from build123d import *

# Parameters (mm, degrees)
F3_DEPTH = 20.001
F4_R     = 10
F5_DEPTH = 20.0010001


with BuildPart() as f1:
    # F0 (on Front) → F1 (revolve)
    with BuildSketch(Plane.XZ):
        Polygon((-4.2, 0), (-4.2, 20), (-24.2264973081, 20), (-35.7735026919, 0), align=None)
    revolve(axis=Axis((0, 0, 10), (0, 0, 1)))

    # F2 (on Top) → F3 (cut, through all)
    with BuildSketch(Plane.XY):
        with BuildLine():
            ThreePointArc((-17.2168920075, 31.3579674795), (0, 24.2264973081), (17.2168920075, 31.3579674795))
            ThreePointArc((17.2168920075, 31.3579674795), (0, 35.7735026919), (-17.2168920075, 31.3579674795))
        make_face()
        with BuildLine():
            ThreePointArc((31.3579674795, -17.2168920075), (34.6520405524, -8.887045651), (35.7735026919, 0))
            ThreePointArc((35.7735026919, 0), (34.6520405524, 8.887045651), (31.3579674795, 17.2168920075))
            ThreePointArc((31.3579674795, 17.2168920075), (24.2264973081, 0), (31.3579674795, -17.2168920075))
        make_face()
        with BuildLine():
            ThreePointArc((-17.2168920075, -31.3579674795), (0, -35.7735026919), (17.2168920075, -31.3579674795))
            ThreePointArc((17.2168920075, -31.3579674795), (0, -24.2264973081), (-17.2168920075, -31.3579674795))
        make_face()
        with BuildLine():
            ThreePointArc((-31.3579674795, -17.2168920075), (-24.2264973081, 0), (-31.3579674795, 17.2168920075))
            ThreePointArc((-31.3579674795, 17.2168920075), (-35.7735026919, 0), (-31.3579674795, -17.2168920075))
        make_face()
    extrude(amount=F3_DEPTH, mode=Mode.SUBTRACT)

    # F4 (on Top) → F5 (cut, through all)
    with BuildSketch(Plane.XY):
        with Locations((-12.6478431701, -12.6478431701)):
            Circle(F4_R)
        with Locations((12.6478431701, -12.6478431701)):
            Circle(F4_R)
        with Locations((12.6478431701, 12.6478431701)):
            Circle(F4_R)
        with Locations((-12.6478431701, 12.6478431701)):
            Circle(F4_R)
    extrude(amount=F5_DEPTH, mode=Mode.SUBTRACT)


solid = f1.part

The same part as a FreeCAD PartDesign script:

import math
import FreeCAD as App
import Part
import Sketcher

V = App.Vector
Q = App.Units.Quantity


def add_polygon(sketch, points):
    """Adds a closed chain of lines whose ends are joined by coincident constraints."""
    first, n = sketch.GeometryCount, len(points)
    for a, b in zip(points, points[1:] + points[:1]):
        sketch.addGeometry(Part.LineSegment(App.Vector(*a, 0), App.Vector(*b, 0)), False)
    for i in range(n):
        sketch.addConstraint(Sketcher.Constraint("Coincident", first + i, 2, first + (i + 1) % n, 1))

doc = App.newDocument("Part")
body = doc.addObject("PartDesign::Body", "Body")

# Sketch on XZ plane
sketch1 = doc.addObject("Sketcher::SketchObject", "Sketch")
body.addObject(sketch1)
sketch1.AttachmentSupport = (doc.XZ_Plane, [""])
sketch1.MapMode = "FlatFace"
add_polygon(sketch1, [(-4.2, 0), (-4.2, 20), (-24.226497, 20), (-35.773503, 0)])  # lines 0-3
sketch1.addConstraint([
    Sketcher.Constraint("Vertical", 0),
    Sketcher.Constraint("Horizontal", 1),
    Sketcher.Constraint("Horizontal", 3),
    Sketcher.Constraint("PointOnObject", 2, 2, -1),
    Sketcher.Constraint("DistanceY", 0, 1, 0, 2, Q("20 mm")),
    Sketcher.Constraint("Angle", 2, Q("-120 deg")),
    Sketcher.Constraint("DistanceX", 0, 2, -1, 1, Q("4.2 mm")),
    Sketcher.Constraint("DistanceX", 1, 2, 1, 1, Q("20.026497 mm")),
])
revolution = doc.addObject("PartDesign::Revolution", "Revolution")
body.addObject(revolution)
revolution.Profile = sketch1
revolution.ReferenceAxis = (sketch1, ["V_Axis"])
revolution.Angle = 360

# Sketch on XY plane
sketch2 = doc.addObject("Sketcher::SketchObject", "Sketch001")
body.addObject(sketch2)
sketch2.AttachmentSupport = (doc.XY_Plane, [""])
sketch2.MapMode = "FlatFace"
sketch2.addGeometry([
    Part.ArcOfCircle(Part.Circle(V(0, 48.574859, 0), V(0, 0, 1), 24.348362), math.radians(-135), math.radians(-45)),  # 0
    Part.ArcOfCircle(Part.Circle(V(0, 0, 0), V(0, 0, 1), 35.773503), math.radians(61.231293), math.radians(118.768707)),  # 1
    Part.ArcOfCircle(Part.Circle(V(0, 0, 0), V(0, 0, 1), 35.773503), math.radians(-28.768707), math.radians(0)),  # 2
    Part.ArcOfCircle(Part.Circle(V(0, 0, 0), V(0, 0, 1), 35.773503), math.radians(0), math.radians(28.768707)),  # 3
    Part.ArcOfCircle(Part.Circle(V(48.574859, 0, 0), V(0, 0, 1), 24.348362), math.radians(135), math.radians(225)),  # 4
    Part.ArcOfCircle(Part.Circle(V(0, 0, 0), V(0, 0, 1), 35.773503), math.radians(-118.768707), math.radians(-61.231293)),  # 5
    Part.ArcOfCircle(Part.Circle(V(0, -48.574859, 0), V(0, 0, 1), 24.348362), math.radians(45), math.radians(135)),  # 6
    Part.ArcOfCircle(Part.Circle(V(-48.574859, 0, 0), V(0, 0, 1), 24.348362), math.radians(-45), math.radians(45)),  # 7
    Part.ArcOfCircle(Part.Circle(V(0, 0, 0), V(0, 0, 1), 35.773503), math.radians(151.231293), math.radians(208.768707)),  # 8
], False)
sketch2.addConstraint([
    Sketcher.Constraint("Coincident", 0, 1, 1, 2),
    Sketcher.Constraint("Coincident", 1, 1, 0, 2),
    Sketcher.Constraint("Tangent", 2, 2, 3, 1),
    Sketcher.Constraint("Coincident", 3, 2, 4, 1),
    Sketcher.Constraint("Coincident", 4, 2, 2, 1),
    Sketcher.Constraint("Coincident", 5, 1, 6, 2),
    Sketcher.Constraint("Coincident", 6, 1, 5, 2),
    Sketcher.Constraint("Coincident", 7, 1, 8, 2),
    Sketcher.Constraint("Coincident", 8, 1, 7, 2),
    Sketcher.Constraint("Coincident", 1, 3, -1, 1),
    Sketcher.Constraint("Coincident", 2, 3, -1, 1),
    Sketcher.Constraint("Coincident", 5, 3, -1, 1),
    Sketcher.Constraint("Coincident", 8, 3, -1, 1),
    Sketcher.Constraint("Equal", 1, 2),
    Sketcher.Constraint("Equal", 2, 3),
    Sketcher.Constraint("Equal", 0, 4),
    Sketcher.Constraint("Equal", 3, 5),
    Sketcher.Constraint("Equal", 4, 6),
    Sketcher.Constraint("Equal", 6, 7),
    Sketcher.Constraint("Equal", 5, 8),
    Sketcher.Constraint("Symmetric", 0, 3, 6, 3, -1, 1),
    Sketcher.Constraint("Symmetric", 4, 3, 7, 3, -1, 1),
    Sketcher.Constraint("PointOnObject", 0, 3, -2),
    Sketcher.Constraint("PointOnObject", 4, 3, -1),
    Sketcher.Constraint("PointOnObject", 2, 2, -1),
    Sketcher.Constraint("Radius", 0, Q("24.348362 mm")),
    Sketcher.Constraint("Radius", 1, Q("35.773503 mm")),
    Sketcher.Constraint("DistanceY", -1, 1, 0, 3, Q("48.574859 mm")),
    Sketcher.Constraint("DistanceX", -1, 1, 4, 3, Q("48.574859 mm")),
])
pocket1 = doc.addObject("PartDesign::Pocket", "Pocket")
body.addObject(pocket1)
pocket1.Profile = sketch2
pocket1.Type = "ThroughAll"
pocket1.Reversed = True

# Sketch on XY plane
sketch3 = doc.addObject("Sketcher::SketchObject", "Sketch002")
body.addObject(sketch3)
sketch3.AttachmentSupport = (doc.XY_Plane, [""])
sketch3.MapMode = "FlatFace"
sketch3.addGeometry([
    Part.Circle(V(-12.647843, -12.647843, 0), V(0, 0, 1), 10),
    Part.Circle(V(12.647843, -12.647843, 0), V(0, 0, 1), 10),
    Part.Circle(V(12.647843, 12.647843, 0), V(0, 0, 1), 10),
    Part.Circle(V(-12.647843, 12.647843, 0), V(0, 0, 1), 10),
], False)
sketch3.addConstraint([
    Sketcher.Constraint("Equal", 0, 1),
    Sketcher.Constraint("Equal", 1, 2),
    Sketcher.Constraint("Equal", 2, 3),
    Sketcher.Constraint("Symmetric", 0, 3, 2, 3, -1, 1),
    Sketcher.Constraint("Symmetric", 1, 3, 3, 3, -1, 1),
    Sketcher.Constraint("Symmetric", 0, 3, 1, 3, -2),
    Sketcher.Constraint("Diameter", 0, Q("20 mm")),
    Sketcher.Constraint("DistanceX", 0, 3, -1, 1, Q("12.647843 mm")),
    Sketcher.Constraint("DistanceY", 0, 3, -1, 1, Q("12.647843 mm")),
])
pocket2 = doc.addObject("PartDesign::Pocket", "Pocket001")
body.addObject(pocket2)
pocket2.Profile = sketch3
pocket2.Type = "ThroughAll"
pocket2.Reversed = True

doc.recompute()
